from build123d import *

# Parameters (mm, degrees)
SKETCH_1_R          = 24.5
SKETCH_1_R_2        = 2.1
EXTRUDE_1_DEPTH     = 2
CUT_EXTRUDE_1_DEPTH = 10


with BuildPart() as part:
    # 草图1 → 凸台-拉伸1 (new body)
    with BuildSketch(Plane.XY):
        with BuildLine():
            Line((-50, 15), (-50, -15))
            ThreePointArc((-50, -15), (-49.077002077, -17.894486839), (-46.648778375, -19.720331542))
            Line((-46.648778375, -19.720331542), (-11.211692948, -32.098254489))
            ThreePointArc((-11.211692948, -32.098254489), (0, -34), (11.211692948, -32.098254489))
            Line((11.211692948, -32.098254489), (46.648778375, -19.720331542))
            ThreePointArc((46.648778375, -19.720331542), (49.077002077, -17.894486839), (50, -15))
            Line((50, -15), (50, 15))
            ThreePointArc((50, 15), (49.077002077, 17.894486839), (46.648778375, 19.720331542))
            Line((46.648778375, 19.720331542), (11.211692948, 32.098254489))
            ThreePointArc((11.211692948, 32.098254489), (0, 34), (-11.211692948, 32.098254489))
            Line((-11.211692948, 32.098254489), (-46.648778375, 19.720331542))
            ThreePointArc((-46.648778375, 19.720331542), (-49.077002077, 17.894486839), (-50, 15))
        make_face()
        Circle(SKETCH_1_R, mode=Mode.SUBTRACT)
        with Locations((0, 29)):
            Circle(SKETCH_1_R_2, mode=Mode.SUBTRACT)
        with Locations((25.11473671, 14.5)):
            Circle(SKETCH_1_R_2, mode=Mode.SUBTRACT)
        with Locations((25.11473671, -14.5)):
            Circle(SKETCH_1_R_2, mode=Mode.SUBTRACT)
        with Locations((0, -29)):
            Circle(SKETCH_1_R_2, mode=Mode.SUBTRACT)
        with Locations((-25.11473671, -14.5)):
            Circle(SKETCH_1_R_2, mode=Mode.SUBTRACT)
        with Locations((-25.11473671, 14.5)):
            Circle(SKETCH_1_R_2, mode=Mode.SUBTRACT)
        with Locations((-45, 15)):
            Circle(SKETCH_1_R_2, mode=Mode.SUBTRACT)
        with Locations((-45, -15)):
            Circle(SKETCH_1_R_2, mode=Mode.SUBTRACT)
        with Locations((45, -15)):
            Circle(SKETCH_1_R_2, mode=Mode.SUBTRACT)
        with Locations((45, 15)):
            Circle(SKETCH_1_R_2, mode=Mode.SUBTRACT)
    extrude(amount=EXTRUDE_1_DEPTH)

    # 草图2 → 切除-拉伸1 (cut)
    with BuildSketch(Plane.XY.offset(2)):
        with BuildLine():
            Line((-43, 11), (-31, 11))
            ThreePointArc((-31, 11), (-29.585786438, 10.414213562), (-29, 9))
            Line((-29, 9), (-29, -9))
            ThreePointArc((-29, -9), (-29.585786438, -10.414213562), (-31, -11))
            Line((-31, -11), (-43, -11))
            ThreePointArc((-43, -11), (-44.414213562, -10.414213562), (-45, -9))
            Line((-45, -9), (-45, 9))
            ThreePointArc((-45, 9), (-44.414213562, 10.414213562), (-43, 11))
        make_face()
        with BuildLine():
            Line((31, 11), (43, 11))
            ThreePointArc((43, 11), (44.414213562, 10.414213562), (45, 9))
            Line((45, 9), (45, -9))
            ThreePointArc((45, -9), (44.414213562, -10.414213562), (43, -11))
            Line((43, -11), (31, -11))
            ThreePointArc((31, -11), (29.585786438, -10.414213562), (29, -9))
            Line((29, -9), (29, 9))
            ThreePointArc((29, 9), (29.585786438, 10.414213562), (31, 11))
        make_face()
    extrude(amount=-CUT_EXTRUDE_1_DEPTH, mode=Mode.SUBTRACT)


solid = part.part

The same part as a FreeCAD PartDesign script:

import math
import FreeCAD as App
import Part
import Sketcher

doc = App.newDocument("Part")
body = doc.addObject("PartDesign::Body", "Body")

sketch1 = body.newObject("Sketcher::SketchObject", "Sketch")
sketch1.AttachmentSupport = (doc.getObject("XY_Plane"), [""])
sketch1.MapMode = "FlatFace"
sketch1.addGeometry([
    Part.LineSegment(App.Vector(-50, 15, 0), App.Vector(-50, -15, 0)),
    Part.ArcOfCircle(Part.Circle(App.Vector(-45, -15, 0), App.Vector(0, 0, 1), 5), math.radians(-180), math.radians(-109)),
    Part.LineSegment(App.Vector(-46.6, -19.7, 0), App.Vector(-11.2, -32.1, 0)),
    Part.ArcOfCircle(Part.Circle(App.Vector(0, 0, 0), App.Vector(0, 0, 1), 34), math.radians(-109), math.radians(-71)),
    Part.LineSegment(App.Vector(11.2, -32.1, 0), App.Vector(46.6, -19.7, 0)),
    Part.ArcOfCircle(Part.Circle(App.Vector(45, -15, 0), App.Vector(0, 0, 1), 5), math.radians(-71), math.radians(0)),
    Part.LineSegment(App.Vector(50, -15, 0), App.Vector(50, 15, 0)),
    Part.ArcOfCircle(Part.Circle(App.Vector(45, 15, 0), App.Vector(0, 0, 1), 5), math.radians(0), math.radians(71)),
    Part.LineSegment(App.Vector(46.6, 19.7, 0), App.Vector(11.2, 32.1, 0)),
    Part.ArcOfCircle(Part.Circle(App.Vector(0, 0, 0), App.Vector(0, 0, 1), 34), math.radians(71), math.radians(109)),
    Part.LineSegment(App.Vector(-11.2, 32.1, 0), App.Vector(-46.6, 19.7, 0)),
    Part.ArcOfCircle(Part.Circle(App.Vector(-45, 15, 0), App.Vector(0, 0, 1), 5), math.radians(109), math.radians(180)),
    Part.Circle(App.Vector(-45, -15, 0), App.Vector(0, 0, 1), 2.1),
    Part.Circle(App.Vector(-25.1, -14.5, 0), App.Vector(0, 0, 1), 2.1),
    Part.Circle(App.Vector(0, -29, 0), App.Vector(0, 0, 1), 2.1),
    Part.Circle(App.Vector(25.1, -14.5, 0), App.Vector(0, 0, 1), 2.1),
    Part.Circle(App.Vector(45, -15, 0), App.Vector(0, 0, 1), 2.1),
    Part.Circle(App.Vector(-45, 15, 0), App.Vector(0, 0, 1), 2.1),
    Part.Circle(App.Vector(-25.1, 14.5, 0), App.Vector(0, 0, 1), 2.1),
    Part.Circle(App.Vector(0, 0, 0), App.Vector(0, 0, 1), 24.5),
    Part.Circle(App.Vector(25.1, 14.5, 0), App.Vector(0, 0, 1), 2.1),
    Part.Circle(App.Vector(45, 15, 0), App.Vector(0, 0, 1), 2.1),
    Part.Circle(App.Vector(0, 29, 0), App.Vector(0, 0, 1), 2.1),
], False)
sketch1.addConstraint([
    Sketcher.Constraint("Tangent", 0, 2, 1, 1),
    Sketcher.Constraint("Tangent", 1, 2, 2, 1),
    Sketcher.Constraint("Tangent", 2, 2, 3, 1),
    Sketcher.Constraint("Tangent", 3, 2, 4, 1),
    Sketcher.Constraint("Tangent", 4, 2, 5, 1),
    Sketcher.Constraint("Tangent", 5, 2, 6, 1),
    Sketcher.Constraint("Tangent", 6, 2, 7, 1),
    Sketcher.Constraint("Tangent", 7, 2, 8, 1),
    Sketcher.Constraint("Tangent", 8, 2, 9, 1),
    Sketcher.Constraint("Tangent", 9, 2, 10, 1),
    Sketcher.Constraint("Tangent", 10, 2, 11, 1),
    Sketcher.Constraint("Tangent", 11, 2, 0, 1),
    Sketcher.Constraint("Vertical", 0),
    Sketcher.Constraint("Vertical", 6),
    Sketcher.Constraint("Coincident", 3, 3, -1, 1),
    Sketcher.Constraint("Coincident", 9, 3, -1, 1),
    Sketcher.Constraint("Coincident", 19, 3, -1, 1),
    Sketcher.Constraint("Coincident", 12, 3, 1, 3),
    Sketcher.Constraint("Coincident", 16, 3, 5, 3),
    Sketcher.Constraint("Coincident", 17, 3, 11, 3),
    Sketcher.Constraint("Coincident", 21, 3, 7, 3),
    Sketcher.Constraint("Equal", 1, 5),
    Sketcher.Constraint("Equal", 5, 7),
    Sketcher.Constraint("Equal", 3, 9),
    Sketcher.Constraint("Equal", 7, 11),
    Sketcher.Constraint("Equal", 12, 13),
    Sketcher.Constraint("Equal", 13, 14),
    Sketcher.Constraint("Equal", 14, 15),
    Sketcher.Constraint("Equal", 15, 16),
    Sketcher.Constraint("Equal", 16, 17),
    Sketcher.Constraint("Equal", 17, 18),
    Sketcher.Constraint("Equal", 18, 20),
    Sketcher.Constraint("Equal", 20, 21),
    Sketcher.Constraint("Equal", 21, 22),
    Sketcher.Constraint("Symmetric", 1, 3, 7, 3, -1, 1),
    Sketcher.Constraint("Symmetric", 15, 3, 18, 3, -1, 1),
    Sketcher.Constraint("Symmetric", 13, 3, 20, 3, -1, 1),
    Sketcher.Constraint("Symmetric", 14, 3, 22, 3, -1, 1),
    Sketcher.Constraint("Symmetric", 13, 3, 15, 3, -2),
    Sketcher.Constraint("PointOnObject", 14, 3, -2),
    Sketcher.Constraint("Parallel", 4, 10),
    Sketcher.Constraint("Horizontal", 1, 3, 5, 3),
    Sketcher.Constraint("Diameter", 19, 49.0),
    Sketcher.Constraint("Radius", 1, 5.0),
    Sketcher.Constraint("Radius", 3, 34.0),
    Sketcher.Constraint("Diameter", 12, 4.2),
    Sketcher.Constraint("DistanceY", 0, 2, 0, 1, 30.0),
    Sketcher.Constraint("DistanceX", 1, 3, -1, 1, 45.0),
    Sketcher.Constraint("DistanceY", 14, 3, -1, 1, 29.0),
    Sketcher.Constraint("DistanceY", 13, 3, 18, 3, 29.0),
    Sketcher.Constraint("DistanceX", 1, 2, 13, 3, 21.534042),
])
pad1 = body.newObject("PartDesign::Pad", "Pad")
pad1.Profile = sketch1
pad1.Length = 2

sketch2 = body.newObject("Sketcher::SketchObject", "Sketch001")
sketch2.AttachmentSupport = (doc.getObject("XY_Plane"), [""])
sketch2.MapMode = "FlatFace"
sketch2.AttachmentOffset = App.Placement(App.Vector(0, 0, 2), App.Rotation())
sketch2.addGeometry([
    Part.LineSegment(App.Vector(-31, 11, 0), App.Vector(-43, 11, 0)),
    Part.ArcOfCircle(Part.Circle(App.Vector(-43, 9, 0), App.Vector(0, 0, 1), 2), math.radians(90), math.radians(180)),
    Part.LineSegment(App.Vector(-45, 9, 0), App.Vector(-45, -9, 0)),
    Part.ArcOfCircle(Part.Circle(App.Vector(-43, -9, 0), App.Vector(0, 0, 1), 2), math.radians(-180), math.radians(-90)),
    Part.LineSegment(App.Vector(-43, -11, 0), App.Vector(-31, -11, 0)),
    Part.ArcOfCircle(Part.Circle(App.Vector(-31, -9, 0), App.Vector(0, 0, 1), 2), math.radians(-90), math.radians(0)),
    Part.LineSegment(App.Vector(-29, -9, 0), App.Vector(-29, 9, 0)),
    Part.ArcOfCircle(Part.Circle(App.Vector(-31, 9, 0), App.Vector(0, 0, 1), 2), math.radians(0), math.radians(90)),
    Part.LineSegment(App.Vector(43, 11, 0), App.Vector(31, 11, 0)),
    Part.ArcOfCircle(Part.Circle(App.Vector(31, 9, 0), App.Vector(0, 0, 1), 2), math.radians(90), math.radians(180)),
    Part.LineSegment(App.Vector(29, 9, 0), App.Vector(29, -9, 0)),
    Part.ArcOfCircle(Part.Circle(App.Vector(31, -9, 0), App.Vector(0, 0, 1), 2), math.radians(-180), math.radians(-90)),
    Part.LineSegment(App.Vector(31, -11, 0), App.Vector(43, -11, 0)),
    Part.ArcOfCircle(Part.Circle(App.Vector(43, -9, 0), App.Vector(0, 0, 1), 2), math.radians(-90), math.radians(0)),
    Part.LineSegment(App.Vector(45, -9, 0), App.Vector(45, 9, 0)),
    Part.ArcOfCircle(Part.Circle(App.Vector(43, 9, 0), App.Vector(0, 0, 1), 2), math.radians(0), math.radians(90)),
], False)
sketch2.addConstraint([
    Sketcher.Constraint("Tangent", 0, 2, 1, 1),
    Sketcher.Constraint("Tangent", 1, 2, 2, 1),
    Sketcher.Constraint("Tangent", 2, 2, 3, 1),
    Sketcher.Constraint("Tangent", 3, 2, 4, 1),
    Sketcher.Constraint("Tangent", 4, 2, 5, 1),
    Sketcher.Constraint("Tangent", 5, 2, 6, 1),
    Sketcher.Constraint("Tangent", 6, 2, 7, 1),
    Sketcher.Constraint("Tangent", 7, 2, 0, 1),
    Sketcher.Constraint("Tangent", 8, 2, 9, 1),
    Sketcher.Constraint("Tangent", 9, 2, 10, 1),
    Sketcher.Constraint("Tangent", 10, 2, 11, 1),
    Sketcher.Constraint("Tangent", 11, 2, 12, 1),
    Sketcher.Constraint("Tangent", 12, 2, 13, 1),
    Sketcher.Constraint("Tangent", 13, 2, 14, 1),
    Sketcher.Constraint("Tangent", 14, 2, 15, 1),
    Sketcher.Constraint("Tangent", 15, 2, 8, 1),
    Sketcher.Constraint("Horizontal", 0),
    Sketcher.Constraint("Vertical", 2),
    Sketcher.Constraint("Horizontal", 4),
    Sketcher.Constraint("Vertical", 6),
    Sketcher.Constraint("Horizontal", 8),
    Sketcher.Constraint("Vertical", 10),
    Sketcher.Constraint("Horizontal", 12),
    Sketcher.Constraint("Vertical", 14),
    Sketcher.Constraint("Equal", 1, 3),
    Sketcher.Constraint("Equal", 3, 5),
    Sketcher.Constraint("Equal", 5, 7),
    Sketcher.Constraint("Equal", 7, 9),
    Sketcher.Constraint("Equal", 9, 11),
    Sketcher.Constraint("Equal", 11, 13),
    Sketcher.Constraint("Equal", 13, 15),
    Sketcher.Constraint("Symmetric", 5, 3, 9, 3, -1, 1),
    Sketcher.Constraint("Symmetric", 1, 3, 13, 3, -1, 1),
    Sketcher.Constraint("Horizontal", 7, 3, 9, 3),
    Sketcher.Constraint("Radius", 1, 2.0),
    Sketcher.Constraint("DistanceX", 0, 2, 0, 1, 12.0),
    Sketcher.Constraint("DistanceY", 2, 2, 2, 1, 18.0),
    Sketcher.Constraint("DistanceX", 1, 3, -1, 1, 43.0),
])
pocket1 = body.newObject("PartDesign::Pocket", "Pocket")
pocket1.Profile = sketch2
pocket1.Length = 10

doc.recompute()
